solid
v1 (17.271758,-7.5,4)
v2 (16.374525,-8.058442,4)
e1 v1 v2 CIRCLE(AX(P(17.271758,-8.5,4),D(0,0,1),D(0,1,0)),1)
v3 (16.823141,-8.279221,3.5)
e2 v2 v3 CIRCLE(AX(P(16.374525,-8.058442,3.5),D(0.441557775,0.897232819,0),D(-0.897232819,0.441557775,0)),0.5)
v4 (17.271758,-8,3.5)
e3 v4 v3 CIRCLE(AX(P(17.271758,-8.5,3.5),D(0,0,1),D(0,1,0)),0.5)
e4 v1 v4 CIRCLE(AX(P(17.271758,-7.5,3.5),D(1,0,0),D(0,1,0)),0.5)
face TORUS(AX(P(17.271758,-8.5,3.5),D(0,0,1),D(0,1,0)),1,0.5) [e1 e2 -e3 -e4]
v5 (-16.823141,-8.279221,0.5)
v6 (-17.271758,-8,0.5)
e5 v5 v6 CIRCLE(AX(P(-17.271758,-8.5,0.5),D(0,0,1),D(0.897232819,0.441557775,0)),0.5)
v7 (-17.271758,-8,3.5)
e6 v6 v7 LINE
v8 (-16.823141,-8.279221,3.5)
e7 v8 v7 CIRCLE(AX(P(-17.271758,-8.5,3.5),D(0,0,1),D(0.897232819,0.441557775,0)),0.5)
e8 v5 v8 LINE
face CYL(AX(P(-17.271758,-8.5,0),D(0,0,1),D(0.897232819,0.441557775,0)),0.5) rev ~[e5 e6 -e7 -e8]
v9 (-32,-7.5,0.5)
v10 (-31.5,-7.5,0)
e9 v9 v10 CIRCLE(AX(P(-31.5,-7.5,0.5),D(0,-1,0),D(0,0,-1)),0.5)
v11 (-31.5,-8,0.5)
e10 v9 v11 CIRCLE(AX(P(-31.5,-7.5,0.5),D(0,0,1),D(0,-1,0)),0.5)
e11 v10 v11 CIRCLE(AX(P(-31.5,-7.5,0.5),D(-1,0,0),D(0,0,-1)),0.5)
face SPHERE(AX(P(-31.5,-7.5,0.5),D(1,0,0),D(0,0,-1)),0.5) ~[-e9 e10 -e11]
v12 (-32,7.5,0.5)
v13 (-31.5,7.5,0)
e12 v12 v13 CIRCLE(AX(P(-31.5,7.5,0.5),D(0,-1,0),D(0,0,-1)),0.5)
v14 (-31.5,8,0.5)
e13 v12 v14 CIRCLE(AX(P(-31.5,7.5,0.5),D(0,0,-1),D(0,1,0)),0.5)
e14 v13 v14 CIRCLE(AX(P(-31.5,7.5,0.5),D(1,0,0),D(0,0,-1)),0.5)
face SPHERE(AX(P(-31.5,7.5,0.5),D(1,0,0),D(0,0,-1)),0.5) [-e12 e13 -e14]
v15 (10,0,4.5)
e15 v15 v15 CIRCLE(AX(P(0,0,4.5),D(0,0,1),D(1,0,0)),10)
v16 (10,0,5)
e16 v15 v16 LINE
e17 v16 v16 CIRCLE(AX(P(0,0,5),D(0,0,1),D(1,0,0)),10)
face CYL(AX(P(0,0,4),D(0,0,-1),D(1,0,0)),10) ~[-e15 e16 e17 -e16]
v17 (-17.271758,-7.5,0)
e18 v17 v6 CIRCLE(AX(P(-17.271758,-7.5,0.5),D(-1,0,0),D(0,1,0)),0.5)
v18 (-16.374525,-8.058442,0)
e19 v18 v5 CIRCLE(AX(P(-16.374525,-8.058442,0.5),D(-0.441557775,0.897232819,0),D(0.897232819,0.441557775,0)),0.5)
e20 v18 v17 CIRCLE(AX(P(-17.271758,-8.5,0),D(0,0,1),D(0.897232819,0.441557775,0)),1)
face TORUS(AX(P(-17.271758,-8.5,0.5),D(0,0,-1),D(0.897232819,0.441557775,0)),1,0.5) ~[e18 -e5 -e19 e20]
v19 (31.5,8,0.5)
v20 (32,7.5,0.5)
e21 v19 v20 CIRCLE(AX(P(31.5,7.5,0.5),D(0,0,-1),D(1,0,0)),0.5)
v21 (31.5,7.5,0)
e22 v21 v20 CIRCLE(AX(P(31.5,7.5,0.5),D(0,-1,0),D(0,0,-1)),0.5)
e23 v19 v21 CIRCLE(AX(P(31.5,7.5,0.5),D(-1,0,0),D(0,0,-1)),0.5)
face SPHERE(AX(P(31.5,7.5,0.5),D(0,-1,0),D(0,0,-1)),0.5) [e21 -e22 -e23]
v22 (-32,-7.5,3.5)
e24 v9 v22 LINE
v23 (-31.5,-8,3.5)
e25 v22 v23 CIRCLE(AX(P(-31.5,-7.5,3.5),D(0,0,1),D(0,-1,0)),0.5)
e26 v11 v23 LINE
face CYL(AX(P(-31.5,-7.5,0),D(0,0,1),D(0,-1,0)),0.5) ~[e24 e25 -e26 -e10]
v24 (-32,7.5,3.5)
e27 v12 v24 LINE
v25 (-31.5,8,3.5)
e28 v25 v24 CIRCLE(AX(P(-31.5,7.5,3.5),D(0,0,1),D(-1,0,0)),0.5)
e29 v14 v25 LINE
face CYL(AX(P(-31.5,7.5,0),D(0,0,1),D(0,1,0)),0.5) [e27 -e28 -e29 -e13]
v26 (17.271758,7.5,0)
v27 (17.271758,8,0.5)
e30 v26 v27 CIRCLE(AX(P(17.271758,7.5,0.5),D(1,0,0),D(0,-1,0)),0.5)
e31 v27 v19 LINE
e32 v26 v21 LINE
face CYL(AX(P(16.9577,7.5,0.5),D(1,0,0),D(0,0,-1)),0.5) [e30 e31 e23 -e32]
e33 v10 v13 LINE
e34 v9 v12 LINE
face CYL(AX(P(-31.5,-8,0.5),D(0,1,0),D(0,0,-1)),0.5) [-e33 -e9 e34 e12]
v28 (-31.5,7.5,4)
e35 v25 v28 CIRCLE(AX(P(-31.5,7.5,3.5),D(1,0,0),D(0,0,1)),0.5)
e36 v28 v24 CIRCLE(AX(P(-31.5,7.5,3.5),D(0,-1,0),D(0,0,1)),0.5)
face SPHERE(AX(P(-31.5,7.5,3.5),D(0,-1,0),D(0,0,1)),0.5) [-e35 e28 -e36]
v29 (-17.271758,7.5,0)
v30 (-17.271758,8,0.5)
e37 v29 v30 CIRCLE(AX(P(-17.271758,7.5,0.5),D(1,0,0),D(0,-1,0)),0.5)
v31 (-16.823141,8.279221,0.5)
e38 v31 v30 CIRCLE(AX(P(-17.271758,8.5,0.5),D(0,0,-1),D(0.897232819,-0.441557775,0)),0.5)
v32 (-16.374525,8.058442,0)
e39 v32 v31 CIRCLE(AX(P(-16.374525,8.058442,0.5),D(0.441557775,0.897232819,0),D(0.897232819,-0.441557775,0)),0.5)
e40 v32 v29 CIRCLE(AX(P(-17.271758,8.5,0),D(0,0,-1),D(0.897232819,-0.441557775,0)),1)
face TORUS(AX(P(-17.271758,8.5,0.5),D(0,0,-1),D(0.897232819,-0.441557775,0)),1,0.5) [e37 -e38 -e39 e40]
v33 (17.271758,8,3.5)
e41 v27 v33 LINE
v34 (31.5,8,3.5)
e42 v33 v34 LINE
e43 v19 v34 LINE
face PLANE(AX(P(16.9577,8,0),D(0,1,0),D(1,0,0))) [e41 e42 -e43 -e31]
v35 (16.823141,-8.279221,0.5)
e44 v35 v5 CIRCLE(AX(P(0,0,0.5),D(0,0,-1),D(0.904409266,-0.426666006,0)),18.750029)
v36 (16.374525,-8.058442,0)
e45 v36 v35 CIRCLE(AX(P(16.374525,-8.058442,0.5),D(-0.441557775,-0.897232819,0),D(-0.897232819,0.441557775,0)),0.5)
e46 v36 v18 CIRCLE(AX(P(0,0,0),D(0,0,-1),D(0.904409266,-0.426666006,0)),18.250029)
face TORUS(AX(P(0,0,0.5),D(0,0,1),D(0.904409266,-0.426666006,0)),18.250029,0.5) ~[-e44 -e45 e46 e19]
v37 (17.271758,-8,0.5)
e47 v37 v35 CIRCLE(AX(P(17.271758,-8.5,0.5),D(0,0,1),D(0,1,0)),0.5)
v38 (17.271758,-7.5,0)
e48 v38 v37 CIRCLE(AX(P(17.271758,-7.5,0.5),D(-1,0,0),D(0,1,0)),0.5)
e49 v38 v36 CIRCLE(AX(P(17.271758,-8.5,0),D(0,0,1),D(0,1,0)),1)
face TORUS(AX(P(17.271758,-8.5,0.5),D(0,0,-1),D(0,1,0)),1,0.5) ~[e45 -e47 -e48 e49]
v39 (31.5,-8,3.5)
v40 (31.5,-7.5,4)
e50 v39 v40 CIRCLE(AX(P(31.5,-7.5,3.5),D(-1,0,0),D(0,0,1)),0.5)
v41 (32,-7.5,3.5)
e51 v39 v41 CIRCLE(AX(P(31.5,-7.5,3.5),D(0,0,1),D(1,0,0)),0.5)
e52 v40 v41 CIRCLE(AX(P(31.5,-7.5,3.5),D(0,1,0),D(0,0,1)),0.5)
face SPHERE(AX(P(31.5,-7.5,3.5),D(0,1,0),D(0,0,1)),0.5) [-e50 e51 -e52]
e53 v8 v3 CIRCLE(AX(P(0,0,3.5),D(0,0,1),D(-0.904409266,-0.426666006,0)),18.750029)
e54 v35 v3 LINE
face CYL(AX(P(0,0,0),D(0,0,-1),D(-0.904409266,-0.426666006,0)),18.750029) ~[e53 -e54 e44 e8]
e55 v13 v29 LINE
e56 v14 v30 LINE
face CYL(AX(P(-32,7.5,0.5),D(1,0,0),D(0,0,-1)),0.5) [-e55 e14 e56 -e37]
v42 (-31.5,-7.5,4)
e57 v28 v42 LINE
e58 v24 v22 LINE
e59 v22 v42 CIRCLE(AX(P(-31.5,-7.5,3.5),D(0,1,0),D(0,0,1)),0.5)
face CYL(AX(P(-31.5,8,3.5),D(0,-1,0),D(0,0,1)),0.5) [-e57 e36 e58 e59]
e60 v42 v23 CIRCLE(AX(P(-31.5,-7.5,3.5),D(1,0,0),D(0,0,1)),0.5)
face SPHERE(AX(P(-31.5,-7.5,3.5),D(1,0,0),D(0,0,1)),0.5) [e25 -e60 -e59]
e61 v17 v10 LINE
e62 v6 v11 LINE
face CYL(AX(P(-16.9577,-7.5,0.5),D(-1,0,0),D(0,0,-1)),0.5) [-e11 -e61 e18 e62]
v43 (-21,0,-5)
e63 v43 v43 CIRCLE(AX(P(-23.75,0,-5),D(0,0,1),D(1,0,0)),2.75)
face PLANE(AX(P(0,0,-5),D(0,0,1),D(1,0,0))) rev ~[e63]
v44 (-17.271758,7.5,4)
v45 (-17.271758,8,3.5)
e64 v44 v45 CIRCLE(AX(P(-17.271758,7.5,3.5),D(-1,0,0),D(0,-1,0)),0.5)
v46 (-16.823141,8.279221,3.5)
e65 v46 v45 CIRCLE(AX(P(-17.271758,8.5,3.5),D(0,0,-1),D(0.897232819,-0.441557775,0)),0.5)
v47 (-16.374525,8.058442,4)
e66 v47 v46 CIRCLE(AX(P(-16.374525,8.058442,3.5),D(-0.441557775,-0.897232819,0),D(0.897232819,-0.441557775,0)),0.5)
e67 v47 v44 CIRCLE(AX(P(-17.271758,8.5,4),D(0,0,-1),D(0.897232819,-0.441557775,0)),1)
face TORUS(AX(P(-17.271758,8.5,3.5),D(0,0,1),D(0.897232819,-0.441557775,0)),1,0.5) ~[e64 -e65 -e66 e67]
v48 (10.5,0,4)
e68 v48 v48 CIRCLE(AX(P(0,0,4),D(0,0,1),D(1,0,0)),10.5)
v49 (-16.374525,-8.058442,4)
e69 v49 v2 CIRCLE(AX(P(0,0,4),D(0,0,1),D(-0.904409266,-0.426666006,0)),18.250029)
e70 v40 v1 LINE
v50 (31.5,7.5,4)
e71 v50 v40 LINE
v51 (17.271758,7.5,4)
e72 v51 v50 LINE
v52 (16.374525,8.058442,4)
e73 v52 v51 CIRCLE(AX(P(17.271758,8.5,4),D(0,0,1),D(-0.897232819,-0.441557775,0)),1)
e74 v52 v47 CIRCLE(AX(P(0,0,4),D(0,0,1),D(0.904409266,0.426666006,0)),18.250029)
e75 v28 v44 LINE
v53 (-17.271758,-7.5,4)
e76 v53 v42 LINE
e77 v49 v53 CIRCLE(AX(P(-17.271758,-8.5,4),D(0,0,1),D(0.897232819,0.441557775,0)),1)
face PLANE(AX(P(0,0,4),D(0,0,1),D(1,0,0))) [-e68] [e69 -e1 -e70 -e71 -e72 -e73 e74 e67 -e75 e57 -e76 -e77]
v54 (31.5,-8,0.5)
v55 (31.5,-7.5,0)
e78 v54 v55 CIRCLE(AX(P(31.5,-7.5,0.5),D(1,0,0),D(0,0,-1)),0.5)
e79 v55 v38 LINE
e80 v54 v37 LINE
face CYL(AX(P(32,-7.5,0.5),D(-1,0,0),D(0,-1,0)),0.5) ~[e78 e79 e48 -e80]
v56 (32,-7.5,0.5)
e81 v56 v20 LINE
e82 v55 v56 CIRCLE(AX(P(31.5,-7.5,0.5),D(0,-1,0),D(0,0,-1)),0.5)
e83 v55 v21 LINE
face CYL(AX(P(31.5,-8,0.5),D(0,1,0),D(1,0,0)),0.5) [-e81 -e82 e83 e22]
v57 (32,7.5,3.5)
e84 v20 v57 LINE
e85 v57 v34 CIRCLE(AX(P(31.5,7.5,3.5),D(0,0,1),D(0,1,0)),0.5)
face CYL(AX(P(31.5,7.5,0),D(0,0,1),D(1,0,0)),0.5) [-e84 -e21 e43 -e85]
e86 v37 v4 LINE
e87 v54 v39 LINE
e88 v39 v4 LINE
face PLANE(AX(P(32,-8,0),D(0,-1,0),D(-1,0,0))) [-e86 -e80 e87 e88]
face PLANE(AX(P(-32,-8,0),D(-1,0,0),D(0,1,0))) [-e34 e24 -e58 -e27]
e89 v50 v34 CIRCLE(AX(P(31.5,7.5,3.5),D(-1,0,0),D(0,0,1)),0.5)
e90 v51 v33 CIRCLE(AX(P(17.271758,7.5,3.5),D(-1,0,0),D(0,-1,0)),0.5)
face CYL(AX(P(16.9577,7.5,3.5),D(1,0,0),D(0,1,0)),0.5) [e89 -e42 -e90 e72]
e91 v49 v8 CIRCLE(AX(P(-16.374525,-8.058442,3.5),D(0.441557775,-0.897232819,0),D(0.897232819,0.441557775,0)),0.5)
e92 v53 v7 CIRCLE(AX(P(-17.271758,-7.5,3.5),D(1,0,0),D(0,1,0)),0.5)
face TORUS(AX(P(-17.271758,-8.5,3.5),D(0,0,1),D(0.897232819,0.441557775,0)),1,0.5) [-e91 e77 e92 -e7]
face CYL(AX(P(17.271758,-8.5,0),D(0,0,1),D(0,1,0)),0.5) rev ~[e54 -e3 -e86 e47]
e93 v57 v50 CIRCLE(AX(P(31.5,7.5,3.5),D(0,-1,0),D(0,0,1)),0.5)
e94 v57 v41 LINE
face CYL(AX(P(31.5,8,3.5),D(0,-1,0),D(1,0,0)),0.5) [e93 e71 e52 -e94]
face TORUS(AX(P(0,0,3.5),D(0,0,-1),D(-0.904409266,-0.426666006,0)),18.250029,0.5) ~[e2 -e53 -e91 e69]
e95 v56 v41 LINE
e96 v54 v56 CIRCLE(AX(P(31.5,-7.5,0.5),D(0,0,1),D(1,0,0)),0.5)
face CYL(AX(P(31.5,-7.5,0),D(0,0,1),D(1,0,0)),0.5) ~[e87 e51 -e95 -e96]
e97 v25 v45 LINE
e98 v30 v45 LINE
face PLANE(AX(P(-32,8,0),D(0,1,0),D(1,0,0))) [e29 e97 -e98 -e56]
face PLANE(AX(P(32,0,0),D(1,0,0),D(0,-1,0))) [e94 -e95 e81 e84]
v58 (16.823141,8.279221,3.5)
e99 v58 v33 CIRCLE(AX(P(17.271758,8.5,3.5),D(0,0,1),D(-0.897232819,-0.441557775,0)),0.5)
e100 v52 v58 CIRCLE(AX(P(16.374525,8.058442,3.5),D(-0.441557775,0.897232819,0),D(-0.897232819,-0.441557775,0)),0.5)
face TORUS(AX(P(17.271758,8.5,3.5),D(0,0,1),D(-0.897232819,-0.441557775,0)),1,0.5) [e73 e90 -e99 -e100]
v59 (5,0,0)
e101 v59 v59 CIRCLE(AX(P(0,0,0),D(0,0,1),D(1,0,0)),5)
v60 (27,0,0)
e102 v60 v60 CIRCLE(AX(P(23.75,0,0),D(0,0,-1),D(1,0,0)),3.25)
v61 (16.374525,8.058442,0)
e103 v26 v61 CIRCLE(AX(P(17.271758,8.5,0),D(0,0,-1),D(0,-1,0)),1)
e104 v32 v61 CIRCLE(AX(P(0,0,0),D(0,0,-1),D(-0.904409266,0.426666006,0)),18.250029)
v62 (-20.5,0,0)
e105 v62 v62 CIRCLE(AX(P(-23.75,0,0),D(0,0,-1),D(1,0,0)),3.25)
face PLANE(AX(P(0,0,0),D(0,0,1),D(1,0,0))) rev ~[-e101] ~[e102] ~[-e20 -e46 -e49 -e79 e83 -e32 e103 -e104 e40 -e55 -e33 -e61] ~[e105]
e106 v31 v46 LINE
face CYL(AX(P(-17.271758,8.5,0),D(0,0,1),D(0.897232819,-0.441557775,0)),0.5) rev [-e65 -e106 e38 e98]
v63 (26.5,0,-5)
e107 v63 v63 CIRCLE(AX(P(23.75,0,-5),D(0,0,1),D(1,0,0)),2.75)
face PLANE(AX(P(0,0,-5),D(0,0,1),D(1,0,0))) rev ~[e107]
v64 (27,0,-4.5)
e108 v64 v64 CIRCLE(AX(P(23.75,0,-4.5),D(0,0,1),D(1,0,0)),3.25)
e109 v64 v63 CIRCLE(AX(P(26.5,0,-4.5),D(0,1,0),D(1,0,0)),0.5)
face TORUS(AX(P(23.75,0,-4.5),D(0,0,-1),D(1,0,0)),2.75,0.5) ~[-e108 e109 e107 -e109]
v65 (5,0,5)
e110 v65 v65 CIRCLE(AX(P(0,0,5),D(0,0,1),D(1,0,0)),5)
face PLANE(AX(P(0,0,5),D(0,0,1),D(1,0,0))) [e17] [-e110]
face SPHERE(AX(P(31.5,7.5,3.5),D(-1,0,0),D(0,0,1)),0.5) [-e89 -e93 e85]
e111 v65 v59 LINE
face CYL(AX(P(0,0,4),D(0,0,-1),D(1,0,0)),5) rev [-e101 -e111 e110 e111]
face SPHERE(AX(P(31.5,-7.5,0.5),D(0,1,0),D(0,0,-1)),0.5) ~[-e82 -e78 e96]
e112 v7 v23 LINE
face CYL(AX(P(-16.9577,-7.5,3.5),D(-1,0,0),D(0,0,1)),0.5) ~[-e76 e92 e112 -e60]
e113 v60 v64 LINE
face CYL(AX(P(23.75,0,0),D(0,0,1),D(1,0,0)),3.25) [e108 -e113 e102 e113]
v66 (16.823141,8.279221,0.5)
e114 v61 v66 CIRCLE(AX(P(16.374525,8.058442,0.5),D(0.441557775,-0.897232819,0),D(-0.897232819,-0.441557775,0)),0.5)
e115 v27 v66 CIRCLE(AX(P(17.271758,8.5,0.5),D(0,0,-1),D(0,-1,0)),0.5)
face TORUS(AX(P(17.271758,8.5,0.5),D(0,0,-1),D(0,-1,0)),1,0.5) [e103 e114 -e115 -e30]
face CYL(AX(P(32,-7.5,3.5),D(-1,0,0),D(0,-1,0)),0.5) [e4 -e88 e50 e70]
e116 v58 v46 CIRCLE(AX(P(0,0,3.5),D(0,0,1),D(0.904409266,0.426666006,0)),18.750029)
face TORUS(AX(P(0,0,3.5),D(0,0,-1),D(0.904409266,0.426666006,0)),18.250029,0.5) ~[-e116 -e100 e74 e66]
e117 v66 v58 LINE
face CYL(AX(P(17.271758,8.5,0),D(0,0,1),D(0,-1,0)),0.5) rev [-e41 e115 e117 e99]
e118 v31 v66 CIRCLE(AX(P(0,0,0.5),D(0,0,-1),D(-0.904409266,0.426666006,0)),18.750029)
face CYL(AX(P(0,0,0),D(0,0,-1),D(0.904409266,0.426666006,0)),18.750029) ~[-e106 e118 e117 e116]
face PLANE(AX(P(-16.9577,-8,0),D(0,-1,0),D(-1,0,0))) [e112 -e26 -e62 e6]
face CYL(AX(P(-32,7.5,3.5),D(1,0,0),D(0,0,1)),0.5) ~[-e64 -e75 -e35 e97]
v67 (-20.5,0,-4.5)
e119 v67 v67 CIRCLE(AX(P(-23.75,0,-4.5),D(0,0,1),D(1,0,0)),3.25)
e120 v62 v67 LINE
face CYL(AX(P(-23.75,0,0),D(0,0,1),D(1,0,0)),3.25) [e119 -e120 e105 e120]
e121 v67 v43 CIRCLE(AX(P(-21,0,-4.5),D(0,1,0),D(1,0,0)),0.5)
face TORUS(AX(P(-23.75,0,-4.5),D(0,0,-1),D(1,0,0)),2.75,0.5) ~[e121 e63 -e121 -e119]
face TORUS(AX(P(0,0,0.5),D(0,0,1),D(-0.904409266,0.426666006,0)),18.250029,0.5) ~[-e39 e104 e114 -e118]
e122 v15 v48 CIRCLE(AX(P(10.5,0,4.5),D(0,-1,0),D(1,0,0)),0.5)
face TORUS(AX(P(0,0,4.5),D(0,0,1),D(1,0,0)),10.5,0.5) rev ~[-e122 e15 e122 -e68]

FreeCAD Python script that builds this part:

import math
import FreeCAD as App
import Part
import Sketcher
from FreeCAD import Vector
Q = App.Units.Quantity


def edges_at(feature, points):
    """Names of the edges that pass closest to the given points."""
    edges = feature.Shape.Edges
    near = lambda p: min(range(len(edges)), key=lambda i: edges[i].distToShape(Part.Vertex(*p))[0])
    return sorted({f"Edge{near(p) + 1}" for p in points})

doc = App.newDocument("Part")
body = doc.addObject("PartDesign::Body", "Body")

sketch1 = body.newObject("Sketcher::SketchObject", "Sketch")
sketch1.AttachmentSupport = (doc.getObject("XY_Plane"), [""])
sketch1.MapMode = "FlatFace"
sketch1.addGeometry([
    Part.LineSegment(Vector(32, -8, 0), Vector(32, 8, 0)),
    Part.LineSegment(Vector(32, 8, 0), Vector(16.9577, 8, 0)),
    Part.ArcOfCircle(Part.Circle(Vector(0, 0, 0), Vector(0, 0, 1), 18.750029), math.radians(25.256162), math.radians(154.743838)),
    Part.LineSegment(Vector(-16.9577, 8, 0), Vector(-32, 8, 0)),
    Part.LineSegment(Vector(-32, 8, 0), Vector(-32, -8, 0)),
    Part.LineSegment(Vector(-32, -8, 0), Vector(-16.9577, -8, 0)),
    Part.ArcOfCircle(Part.Circle(Vector(0, 0, 0), Vector(0, 0, 1), 18.750029), math.radians(-154.743838), math.radians(-25.256162)),
    Part.LineSegment(Vector(16.9577, -8, 0), Vector(32, -8, 0)),
    Part.Circle(Vector(0, 0, 0), Vector(0, 0, 1), 5),
], False)
sketch1.addConstraint([
    Sketcher.Constraint("Coincident", 0, 2, 1, 1),
    Sketcher.Constraint("Coincident", 1, 2, 2, 1),
    Sketcher.Constraint("Coincident", 2, 2, 3, 1),
    Sketcher.Constraint("Coincident", 3, 2, 4, 1),
    Sketcher.Constraint("Coincident", 4, 2, 5, 1),
    Sketcher.Constraint("Coincident", 5, 2, 6, 1),
    Sketcher.Constraint("Coincident", 6, 2, 7, 1),
    Sketcher.Constraint("Coincident", 7, 2, 0, 1),
    Sketcher.Constraint("Vertical", 0),
    Sketcher.Constraint("Horizontal", 1),
    Sketcher.Constraint("Horizontal", 3),
    Sketcher.Constraint("Vertical", 4),
    Sketcher.Constraint("Horizontal", 5),
    Sketcher.Constraint("Horizontal", 7),
    Sketcher.Constraint("Coincident", 2, 3, -1, 1),
    Sketcher.Constraint("Coincident", 6, 3, -1, 1),
    Sketcher.Constraint("Coincident", 8, 3, -1, 1),
    Sketcher.Constraint("Equal", 2, 6),
    Sketcher.Constraint("Symmetric", 0, 2, 4, 2, -1, 1),
    Sketcher.Constraint("Horizontal", 1, 2, 2, 2),
    Sketcher.Constraint("Horizontal", 5, 2, 6, 2),
    Sketcher.Constraint("Diameter", 8, Q("10 mm")),
    Sketcher.Constraint("Radius", 2, Q("18.75 mm")),
    Sketcher.Constraint("DistanceY", 0, 1, 0, 2, Q("16 mm")),
    Sketcher.Constraint("DistanceX", -1, 1, 0, 2, Q("32 mm")),
])
pad1 = body.newObject("PartDesign::Pad", "Pad")
pad1.Profile = sketch1
pad1.Length = 4

sketch2 = body.newObject("Sketcher::SketchObject", "Sketch001")
sketch2.AttachmentSupport = (doc.getObject("XY_Plane"), [""])
sketch2.MapMode = "FlatFace"
sketch2.addGeometry([
    Part.Circle(Vector(23.75, 0, 0), Vector(0, 0, 1), 3.25),
    Part.Circle(Vector(-23.75, 0, 0), Vector(0, 0, 1), 3.25),
], False)
sketch2.addConstraint([
    Sketcher.Constraint("Equal", 0, 1),
    Sketcher.Constraint("Symmetric", 0, 3, 1, 3, -1, 1),
    Sketcher.Constraint("PointOnObject", 0, 3, -1),
    Sketcher.Constraint("Diameter", 0, Q("6.5 mm")),
    Sketcher.Constraint("DistanceX", 1, 3, 0, 3, Q("47.5 mm")),
])
pad2 = body.newObject("PartDesign::Pad", "Pad001")
pad2.Profile = sketch2
pad2.Length = 5
pad2.Reversed = True
doc.recompute()

fillet = body.newObject("PartDesign::Fillet", "Fillet")
fillet.Base = (pad2, edges_at(pad2, [
    (0, 18.75, 4),
    (24.479, 8, 4),
    (32, 0, 4),
    (24.479, -8, 4),
    (0, -18.75, 4),
    (-24.479, -8, 4),
    (-32, 0, 4),
    (-24.479, 8, 4),
    (32, 0, 0),
    (24.479, 8, 0),
    (0, 18.75, 0),
    (24.479, -8, 0),
    (0, -18.75, 0),
    (-24.479, -8, 0),
    (-24.479, 8, 0),
    (-32, 0, 0),
    (-32, -8, 2),
    (-32, 8, 2),
    (32, 8, 2),
    (32, -8, 2),
    (16.958, -8, 2),
    (-16.958, -8, 2),
    (-16.958, 8, 2),
    (16.958, 8, 2),
    (20.5, 0, -5),
    (-27, 0, -5),
]))
fillet.Radius = 0.5

sketch3 = body.newObject("Sketcher::SketchObject", "Sketch002")
sketch3.AttachmentSupport = (doc.getObject("XY_Plane"), [""])
sketch3.MapMode = "FlatFace"
sketch3.AttachmentOffset = App.Placement(Vector(0, 0, 4), App.Rotation())
sketch3.addGeometry([
    Part.Circle(Vector(0, 0, 0), Vector(0, 0, 1), 10),
    Part.Circle(Vector(0, 0, 0), Vector(0, 0, 1), 5),
], False)
sketch3.addConstraint([
    Sketcher.Constraint("Coincident", 0, 3, -1, 1),
    Sketcher.Constraint("Coincident", 1, 3, -1, 1),
    Sketcher.Constraint("Diameter", 1, Q("10 mm")),
    Sketcher.Constraint("Diameter", 0, Q("20 mm")),
])
pad3 = body.newObject("PartDesign::Pad", "Pad002")
pad3.Profile = sketch3
pad3.Length = 1
doc.recompute()

fillet2 = body.newObject("PartDesign::Fillet", "Fillet001")
fillet2.Base = (pad3, edges_at(pad3, [(-10, 0, 4)]))
fillet2.Radius = 0.5

doc.recompute()
